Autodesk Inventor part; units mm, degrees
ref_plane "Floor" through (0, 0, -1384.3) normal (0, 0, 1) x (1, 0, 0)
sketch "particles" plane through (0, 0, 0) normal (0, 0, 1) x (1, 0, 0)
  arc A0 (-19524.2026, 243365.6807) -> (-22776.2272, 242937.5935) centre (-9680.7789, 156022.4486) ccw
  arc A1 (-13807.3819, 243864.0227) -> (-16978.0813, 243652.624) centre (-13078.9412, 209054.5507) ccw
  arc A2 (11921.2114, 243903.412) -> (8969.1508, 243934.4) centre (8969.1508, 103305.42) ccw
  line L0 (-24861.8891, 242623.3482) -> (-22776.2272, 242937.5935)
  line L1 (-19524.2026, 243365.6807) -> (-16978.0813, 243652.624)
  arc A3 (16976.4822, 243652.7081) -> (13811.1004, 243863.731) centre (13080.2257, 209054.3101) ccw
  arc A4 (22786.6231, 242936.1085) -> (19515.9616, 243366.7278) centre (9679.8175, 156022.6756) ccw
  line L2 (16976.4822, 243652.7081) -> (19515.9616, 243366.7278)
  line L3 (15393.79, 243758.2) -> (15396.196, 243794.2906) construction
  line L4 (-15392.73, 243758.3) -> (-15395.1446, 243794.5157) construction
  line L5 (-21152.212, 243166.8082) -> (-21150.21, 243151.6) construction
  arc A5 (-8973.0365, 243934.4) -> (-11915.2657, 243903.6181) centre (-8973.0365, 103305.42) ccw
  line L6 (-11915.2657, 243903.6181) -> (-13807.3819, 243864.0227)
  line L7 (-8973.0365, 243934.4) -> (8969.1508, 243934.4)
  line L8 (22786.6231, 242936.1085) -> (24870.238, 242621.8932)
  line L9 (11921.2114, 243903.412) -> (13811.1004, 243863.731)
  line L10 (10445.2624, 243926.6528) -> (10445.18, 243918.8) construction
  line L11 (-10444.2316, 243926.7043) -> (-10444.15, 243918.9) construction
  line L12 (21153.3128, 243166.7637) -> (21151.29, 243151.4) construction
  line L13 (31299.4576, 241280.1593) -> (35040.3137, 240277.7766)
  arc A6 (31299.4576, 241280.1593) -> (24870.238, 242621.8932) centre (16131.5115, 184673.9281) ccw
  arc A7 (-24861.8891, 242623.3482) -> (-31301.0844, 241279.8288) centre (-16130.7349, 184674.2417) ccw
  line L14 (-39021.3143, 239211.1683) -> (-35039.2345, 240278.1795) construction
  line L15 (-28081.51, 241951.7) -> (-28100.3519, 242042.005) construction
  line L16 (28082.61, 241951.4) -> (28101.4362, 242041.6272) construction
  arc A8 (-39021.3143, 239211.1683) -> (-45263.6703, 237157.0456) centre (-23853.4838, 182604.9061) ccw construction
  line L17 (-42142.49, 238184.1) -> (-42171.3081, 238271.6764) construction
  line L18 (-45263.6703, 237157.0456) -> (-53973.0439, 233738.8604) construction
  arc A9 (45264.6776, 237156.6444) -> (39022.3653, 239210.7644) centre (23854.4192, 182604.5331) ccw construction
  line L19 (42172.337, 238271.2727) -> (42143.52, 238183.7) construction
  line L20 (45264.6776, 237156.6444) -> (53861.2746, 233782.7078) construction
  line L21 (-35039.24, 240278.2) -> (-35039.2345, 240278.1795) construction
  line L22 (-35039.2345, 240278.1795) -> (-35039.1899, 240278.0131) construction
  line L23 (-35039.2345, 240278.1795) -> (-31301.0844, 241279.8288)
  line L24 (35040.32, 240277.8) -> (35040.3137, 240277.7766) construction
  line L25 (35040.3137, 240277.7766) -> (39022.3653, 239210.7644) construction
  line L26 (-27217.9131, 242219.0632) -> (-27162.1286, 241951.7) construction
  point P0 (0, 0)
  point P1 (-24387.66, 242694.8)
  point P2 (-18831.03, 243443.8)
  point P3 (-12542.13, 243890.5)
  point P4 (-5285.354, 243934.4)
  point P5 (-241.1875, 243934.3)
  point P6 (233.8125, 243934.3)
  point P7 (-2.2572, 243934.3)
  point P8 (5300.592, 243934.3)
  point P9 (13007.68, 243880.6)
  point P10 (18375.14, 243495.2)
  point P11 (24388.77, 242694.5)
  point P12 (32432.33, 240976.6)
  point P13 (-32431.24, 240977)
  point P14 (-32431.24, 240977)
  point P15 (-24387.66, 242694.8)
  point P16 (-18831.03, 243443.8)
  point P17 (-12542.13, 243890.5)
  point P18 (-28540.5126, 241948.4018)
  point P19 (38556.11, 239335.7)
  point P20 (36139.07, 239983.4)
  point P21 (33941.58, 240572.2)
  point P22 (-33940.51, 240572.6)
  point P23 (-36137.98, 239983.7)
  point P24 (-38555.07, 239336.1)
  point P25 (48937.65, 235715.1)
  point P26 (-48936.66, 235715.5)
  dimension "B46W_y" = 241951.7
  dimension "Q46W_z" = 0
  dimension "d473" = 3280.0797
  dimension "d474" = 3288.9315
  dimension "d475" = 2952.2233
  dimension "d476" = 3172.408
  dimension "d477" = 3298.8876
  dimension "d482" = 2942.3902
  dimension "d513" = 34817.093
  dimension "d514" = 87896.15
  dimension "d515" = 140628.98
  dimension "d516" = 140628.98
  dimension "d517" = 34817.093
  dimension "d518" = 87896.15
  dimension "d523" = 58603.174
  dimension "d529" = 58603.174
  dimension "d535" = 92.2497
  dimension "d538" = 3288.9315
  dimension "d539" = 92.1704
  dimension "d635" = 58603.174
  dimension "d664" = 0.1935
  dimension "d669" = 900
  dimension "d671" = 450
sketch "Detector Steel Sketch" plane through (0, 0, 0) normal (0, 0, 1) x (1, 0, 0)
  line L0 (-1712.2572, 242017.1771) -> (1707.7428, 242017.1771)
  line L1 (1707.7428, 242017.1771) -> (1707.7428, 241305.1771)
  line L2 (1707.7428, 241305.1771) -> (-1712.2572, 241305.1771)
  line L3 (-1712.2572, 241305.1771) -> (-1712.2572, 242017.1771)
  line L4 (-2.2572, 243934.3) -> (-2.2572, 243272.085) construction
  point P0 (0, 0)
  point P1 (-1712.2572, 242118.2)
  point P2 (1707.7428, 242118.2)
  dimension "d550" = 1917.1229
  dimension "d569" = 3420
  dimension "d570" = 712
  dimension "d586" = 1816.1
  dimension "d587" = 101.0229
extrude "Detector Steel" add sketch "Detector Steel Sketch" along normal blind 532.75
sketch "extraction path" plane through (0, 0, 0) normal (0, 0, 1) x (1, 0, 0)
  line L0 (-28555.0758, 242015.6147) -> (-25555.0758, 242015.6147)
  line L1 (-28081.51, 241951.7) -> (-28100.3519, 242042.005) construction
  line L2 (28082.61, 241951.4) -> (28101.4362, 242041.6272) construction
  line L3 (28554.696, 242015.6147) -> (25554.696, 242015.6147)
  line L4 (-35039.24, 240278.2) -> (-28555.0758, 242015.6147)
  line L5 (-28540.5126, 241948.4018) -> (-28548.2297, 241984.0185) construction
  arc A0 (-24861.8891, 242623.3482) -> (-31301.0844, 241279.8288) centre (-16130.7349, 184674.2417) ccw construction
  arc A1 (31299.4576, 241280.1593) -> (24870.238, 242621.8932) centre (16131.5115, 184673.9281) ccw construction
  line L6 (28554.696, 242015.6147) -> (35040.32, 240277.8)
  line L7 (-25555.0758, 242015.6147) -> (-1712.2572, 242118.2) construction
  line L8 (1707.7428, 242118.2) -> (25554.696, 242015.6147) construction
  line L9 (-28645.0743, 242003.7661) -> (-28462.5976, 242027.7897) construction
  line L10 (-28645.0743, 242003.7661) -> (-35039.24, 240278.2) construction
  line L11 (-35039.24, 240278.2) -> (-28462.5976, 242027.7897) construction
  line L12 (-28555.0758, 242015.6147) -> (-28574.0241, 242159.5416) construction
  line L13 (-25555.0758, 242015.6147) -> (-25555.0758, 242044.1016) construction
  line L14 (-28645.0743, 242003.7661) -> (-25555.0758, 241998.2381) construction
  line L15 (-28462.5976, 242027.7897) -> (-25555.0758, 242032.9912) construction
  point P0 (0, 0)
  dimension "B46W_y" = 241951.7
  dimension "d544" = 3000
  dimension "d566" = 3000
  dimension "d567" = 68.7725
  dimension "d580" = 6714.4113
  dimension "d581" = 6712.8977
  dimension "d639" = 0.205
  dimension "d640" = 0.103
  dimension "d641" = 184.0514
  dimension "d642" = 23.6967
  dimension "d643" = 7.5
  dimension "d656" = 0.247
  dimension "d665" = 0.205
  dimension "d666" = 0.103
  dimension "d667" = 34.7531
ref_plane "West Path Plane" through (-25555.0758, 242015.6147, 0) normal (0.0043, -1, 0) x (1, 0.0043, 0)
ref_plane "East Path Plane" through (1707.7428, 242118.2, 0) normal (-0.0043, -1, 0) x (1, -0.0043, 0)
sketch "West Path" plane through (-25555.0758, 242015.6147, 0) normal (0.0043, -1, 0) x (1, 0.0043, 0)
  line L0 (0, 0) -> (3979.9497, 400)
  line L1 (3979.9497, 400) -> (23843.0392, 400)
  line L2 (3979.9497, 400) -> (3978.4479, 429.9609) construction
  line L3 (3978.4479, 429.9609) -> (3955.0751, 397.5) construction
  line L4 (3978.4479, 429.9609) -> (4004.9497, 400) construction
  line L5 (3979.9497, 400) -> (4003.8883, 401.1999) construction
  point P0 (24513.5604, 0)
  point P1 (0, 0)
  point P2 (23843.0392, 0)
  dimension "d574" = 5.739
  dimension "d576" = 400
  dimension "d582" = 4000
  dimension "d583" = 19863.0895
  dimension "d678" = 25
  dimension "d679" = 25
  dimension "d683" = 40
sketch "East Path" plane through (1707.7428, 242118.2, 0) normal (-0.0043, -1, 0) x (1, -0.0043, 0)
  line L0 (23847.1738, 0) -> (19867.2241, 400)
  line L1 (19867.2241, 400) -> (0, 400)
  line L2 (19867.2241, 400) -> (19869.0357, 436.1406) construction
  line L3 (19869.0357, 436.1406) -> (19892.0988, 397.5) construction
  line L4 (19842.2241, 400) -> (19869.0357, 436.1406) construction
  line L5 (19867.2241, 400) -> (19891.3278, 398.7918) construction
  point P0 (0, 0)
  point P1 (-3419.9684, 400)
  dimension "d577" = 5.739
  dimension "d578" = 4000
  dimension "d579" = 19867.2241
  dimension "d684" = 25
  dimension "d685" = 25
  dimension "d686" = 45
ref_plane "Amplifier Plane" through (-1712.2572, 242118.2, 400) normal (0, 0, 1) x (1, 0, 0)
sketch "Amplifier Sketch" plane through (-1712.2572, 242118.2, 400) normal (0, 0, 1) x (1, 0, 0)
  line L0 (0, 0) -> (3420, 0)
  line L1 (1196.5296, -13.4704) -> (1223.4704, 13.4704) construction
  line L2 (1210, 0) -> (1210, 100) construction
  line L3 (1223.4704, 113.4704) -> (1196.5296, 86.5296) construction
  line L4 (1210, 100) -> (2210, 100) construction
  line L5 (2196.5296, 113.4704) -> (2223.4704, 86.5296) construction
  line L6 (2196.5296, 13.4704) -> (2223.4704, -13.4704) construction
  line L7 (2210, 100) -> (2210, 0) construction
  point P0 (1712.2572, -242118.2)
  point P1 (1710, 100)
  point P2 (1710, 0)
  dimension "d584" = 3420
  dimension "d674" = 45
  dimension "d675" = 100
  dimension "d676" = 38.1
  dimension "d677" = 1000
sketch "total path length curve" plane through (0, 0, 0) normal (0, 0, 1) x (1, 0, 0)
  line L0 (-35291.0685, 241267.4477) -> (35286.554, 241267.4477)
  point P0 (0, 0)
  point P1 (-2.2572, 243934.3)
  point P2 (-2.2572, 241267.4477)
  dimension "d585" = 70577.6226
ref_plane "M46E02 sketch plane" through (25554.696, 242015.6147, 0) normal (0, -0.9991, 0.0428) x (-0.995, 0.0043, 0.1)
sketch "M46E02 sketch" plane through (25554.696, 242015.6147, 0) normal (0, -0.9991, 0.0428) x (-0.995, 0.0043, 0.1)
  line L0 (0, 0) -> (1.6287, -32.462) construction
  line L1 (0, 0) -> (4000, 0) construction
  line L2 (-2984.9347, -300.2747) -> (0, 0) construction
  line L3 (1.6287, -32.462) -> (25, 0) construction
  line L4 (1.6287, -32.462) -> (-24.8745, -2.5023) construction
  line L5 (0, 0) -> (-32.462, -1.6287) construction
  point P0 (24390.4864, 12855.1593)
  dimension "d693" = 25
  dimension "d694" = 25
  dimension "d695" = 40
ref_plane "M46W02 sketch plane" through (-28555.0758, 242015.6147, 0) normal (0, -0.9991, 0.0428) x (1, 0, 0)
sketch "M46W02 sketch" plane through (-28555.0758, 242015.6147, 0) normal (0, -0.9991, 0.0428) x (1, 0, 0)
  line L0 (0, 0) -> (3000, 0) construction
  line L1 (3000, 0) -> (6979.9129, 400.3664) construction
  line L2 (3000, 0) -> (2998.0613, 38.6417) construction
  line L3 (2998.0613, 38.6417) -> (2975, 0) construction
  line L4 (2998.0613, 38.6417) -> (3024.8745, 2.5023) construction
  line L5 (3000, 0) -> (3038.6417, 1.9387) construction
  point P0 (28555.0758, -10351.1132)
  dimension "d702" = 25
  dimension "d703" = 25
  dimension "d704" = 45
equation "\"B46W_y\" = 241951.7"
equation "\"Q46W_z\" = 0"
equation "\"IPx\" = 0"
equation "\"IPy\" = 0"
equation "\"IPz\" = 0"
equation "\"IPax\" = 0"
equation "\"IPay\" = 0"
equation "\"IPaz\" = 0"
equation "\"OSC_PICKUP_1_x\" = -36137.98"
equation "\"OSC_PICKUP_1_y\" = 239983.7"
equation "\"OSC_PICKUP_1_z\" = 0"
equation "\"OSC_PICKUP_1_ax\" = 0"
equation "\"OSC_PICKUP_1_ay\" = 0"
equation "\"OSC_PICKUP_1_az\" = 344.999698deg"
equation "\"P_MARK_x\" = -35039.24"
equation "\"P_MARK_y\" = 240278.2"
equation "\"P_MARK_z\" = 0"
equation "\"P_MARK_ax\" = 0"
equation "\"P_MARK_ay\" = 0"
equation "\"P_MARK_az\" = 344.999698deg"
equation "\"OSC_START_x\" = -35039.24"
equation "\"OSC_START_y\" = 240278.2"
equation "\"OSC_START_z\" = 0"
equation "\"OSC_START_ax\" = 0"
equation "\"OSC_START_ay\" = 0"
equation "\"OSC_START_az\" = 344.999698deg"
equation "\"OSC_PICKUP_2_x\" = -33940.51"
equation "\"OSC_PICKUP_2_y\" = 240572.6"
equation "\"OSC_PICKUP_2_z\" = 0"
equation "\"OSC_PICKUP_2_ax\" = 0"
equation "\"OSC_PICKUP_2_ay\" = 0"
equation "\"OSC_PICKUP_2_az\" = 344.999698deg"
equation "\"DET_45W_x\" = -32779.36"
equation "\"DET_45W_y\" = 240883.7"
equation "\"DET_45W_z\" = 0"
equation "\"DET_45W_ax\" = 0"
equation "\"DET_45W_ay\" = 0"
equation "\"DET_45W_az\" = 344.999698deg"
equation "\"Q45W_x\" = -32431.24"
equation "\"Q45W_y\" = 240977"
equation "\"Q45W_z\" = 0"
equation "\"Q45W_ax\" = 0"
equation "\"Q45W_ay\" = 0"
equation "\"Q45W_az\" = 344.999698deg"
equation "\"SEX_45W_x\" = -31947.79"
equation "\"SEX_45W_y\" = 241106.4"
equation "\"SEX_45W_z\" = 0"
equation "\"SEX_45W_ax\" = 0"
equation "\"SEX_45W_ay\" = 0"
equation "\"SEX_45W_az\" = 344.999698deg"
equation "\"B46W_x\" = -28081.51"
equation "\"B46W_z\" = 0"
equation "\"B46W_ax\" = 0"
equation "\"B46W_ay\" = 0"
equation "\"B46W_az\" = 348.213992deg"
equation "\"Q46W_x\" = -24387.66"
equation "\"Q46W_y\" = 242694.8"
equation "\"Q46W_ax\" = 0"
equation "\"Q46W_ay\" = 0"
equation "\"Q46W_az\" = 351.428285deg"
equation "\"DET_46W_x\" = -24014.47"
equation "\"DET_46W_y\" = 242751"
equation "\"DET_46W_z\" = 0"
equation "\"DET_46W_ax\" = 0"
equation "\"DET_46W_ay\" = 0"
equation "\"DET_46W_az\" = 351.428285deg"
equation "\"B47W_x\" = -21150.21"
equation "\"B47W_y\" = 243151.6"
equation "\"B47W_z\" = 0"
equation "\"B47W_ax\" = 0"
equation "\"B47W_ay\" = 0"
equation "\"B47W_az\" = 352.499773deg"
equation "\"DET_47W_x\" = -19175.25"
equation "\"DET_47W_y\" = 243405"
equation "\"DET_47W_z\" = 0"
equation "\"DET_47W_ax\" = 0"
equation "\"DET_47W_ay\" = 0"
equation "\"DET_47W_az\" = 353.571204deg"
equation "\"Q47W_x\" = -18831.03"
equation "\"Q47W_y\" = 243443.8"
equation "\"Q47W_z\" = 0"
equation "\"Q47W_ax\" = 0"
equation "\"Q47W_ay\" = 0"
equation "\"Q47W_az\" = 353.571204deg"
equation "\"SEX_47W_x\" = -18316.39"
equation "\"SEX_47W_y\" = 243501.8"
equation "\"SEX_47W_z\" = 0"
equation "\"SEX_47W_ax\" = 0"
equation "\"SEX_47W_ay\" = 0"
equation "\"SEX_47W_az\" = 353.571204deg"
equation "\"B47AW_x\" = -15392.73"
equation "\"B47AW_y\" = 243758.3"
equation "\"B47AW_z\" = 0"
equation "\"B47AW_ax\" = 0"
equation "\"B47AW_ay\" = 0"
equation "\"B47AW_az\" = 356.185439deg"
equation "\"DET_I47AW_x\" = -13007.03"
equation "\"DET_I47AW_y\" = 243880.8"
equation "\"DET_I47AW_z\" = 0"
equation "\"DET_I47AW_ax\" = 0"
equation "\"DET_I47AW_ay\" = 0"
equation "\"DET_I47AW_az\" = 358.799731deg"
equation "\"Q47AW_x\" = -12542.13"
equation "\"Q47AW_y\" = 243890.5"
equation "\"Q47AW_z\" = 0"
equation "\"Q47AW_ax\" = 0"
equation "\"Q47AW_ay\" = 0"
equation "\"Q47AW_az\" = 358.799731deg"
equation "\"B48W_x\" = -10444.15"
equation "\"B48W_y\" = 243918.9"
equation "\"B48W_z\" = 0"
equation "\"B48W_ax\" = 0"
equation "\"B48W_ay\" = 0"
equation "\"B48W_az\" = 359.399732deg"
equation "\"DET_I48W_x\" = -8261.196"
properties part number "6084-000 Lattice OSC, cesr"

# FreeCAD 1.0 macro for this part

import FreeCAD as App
import Part
import Sketcher
Q = App.Units.Quantity


def add_polygon(sketch, points):
    """Adds a closed chain of lines whose ends are joined by coincident constraints."""
    first, n = sketch.GeometryCount, len(points)
    for a, b in zip(points, points[1:] + points[:1]):
        sketch.addGeometry(Part.LineSegment(App.Vector(*a, 0), App.Vector(*b, 0)), False)
    for i in range(n):
        sketch.addConstraint(Sketcher.Constraint("Coincident", first + i, 2, first + (i + 1) % n, 1))

doc = App.newDocument("Part")
body = doc.addObject("PartDesign::Body", "Body")

sketch1 = body.newObject("Sketcher::SketchObject", "Sketch")
sketch1.AttachmentSupport = (doc.getObject("XY_Plane"), [""])
sketch1.MapMode = "FlatFace"
add_polygon(sketch1, [(1708, 242017), (-1712, 242017), (-1712, 241305), (1708, 241305)])
sketch1.addConstraint([
    Sketcher.Constraint("Horizontal", 0),
    Sketcher.Constraint("Vertical", 1),
    Sketcher.Constraint("Horizontal", 2),
    Sketcher.Constraint("Vertical", 3),
    Sketcher.Constraint("DistanceX", 0, 2, 0, 1, Q("3420 mm")),
    Sketcher.Constraint("DistanceY", 1, 2, 1, 1, Q("712 mm")),
    Sketcher.Constraint("DistanceY", -1, 1, 0, 2, Q("242017.177 mm")),
    Sketcher.Constraint("DistanceX", 0, 2, -1, 1, Q("1712.2572 mm")),
])
pad1 = body.newObject("PartDesign::Pad", "Pad")
pad1.Profile = sketch1
pad1.Length = 532.75

doc.recompute()
